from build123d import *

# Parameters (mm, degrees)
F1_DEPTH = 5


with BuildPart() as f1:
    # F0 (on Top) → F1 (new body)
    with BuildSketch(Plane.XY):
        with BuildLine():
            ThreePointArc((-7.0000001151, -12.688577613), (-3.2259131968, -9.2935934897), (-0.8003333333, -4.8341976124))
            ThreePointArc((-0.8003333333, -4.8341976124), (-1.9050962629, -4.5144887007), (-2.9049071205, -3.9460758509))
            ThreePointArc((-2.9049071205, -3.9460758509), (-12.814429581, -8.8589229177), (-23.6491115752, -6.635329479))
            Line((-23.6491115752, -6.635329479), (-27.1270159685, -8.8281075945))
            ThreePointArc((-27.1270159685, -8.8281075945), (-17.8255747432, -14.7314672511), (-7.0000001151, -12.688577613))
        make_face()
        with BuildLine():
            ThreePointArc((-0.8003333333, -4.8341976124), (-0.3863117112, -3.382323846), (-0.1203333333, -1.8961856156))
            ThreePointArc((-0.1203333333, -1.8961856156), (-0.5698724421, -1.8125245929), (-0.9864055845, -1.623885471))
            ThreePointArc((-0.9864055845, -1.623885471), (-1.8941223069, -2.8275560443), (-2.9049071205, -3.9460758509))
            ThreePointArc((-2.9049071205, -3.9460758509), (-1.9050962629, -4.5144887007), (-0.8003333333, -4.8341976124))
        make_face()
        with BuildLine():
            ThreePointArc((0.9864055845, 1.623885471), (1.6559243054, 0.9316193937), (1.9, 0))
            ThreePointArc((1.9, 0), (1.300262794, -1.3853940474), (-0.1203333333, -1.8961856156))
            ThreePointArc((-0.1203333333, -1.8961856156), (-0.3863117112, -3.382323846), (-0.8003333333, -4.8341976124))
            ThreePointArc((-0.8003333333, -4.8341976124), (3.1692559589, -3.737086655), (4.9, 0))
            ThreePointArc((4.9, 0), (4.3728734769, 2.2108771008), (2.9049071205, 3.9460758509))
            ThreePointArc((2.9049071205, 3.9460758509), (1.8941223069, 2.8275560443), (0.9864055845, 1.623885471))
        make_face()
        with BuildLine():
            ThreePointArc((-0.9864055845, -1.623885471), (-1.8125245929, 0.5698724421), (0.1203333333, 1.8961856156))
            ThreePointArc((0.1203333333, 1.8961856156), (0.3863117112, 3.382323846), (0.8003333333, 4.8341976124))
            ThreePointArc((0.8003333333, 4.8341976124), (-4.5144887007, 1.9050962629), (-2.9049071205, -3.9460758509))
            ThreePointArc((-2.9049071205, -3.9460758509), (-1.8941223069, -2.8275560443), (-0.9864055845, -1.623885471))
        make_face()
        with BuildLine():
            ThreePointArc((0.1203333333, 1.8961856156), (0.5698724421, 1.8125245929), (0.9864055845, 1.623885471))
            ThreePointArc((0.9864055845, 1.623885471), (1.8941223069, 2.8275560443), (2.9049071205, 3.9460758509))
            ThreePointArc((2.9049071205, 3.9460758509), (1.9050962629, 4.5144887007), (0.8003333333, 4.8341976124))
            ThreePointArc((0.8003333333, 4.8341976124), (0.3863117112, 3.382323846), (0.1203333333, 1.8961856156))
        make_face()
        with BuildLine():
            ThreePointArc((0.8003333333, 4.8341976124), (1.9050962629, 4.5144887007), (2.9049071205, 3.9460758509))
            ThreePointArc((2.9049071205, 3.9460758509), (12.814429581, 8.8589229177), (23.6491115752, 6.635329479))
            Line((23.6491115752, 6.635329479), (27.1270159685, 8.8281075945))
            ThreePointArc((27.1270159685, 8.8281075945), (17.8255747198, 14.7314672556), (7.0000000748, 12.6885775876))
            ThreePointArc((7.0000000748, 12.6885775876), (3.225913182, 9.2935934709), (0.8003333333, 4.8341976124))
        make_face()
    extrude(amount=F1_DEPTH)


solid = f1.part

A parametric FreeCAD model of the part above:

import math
import FreeCAD as App
import Part
import Sketcher

V = App.Vector
Q = App.Units.Quantity

doc = App.newDocument("Part")
body = doc.addObject("PartDesign::Body", "Body")

sketch1 = body.newObject("Sketcher::SketchObject", "Sketch")
sketch1.AttachmentSupport = (doc.getObject("XY_Plane"), [""])
sketch1.MapMode = "FlatFace"
sketch1.addGeometry(Part.ArcOfCircle(Part.Circle(V(-15, 0, 0), V(0, 0, 1), 15), math.radians(-58), math.radians(-19)), False)
sketch1.addGeometry(Part.ArcOfCircle(Part.Circle(V(0, 0, 0), V(0, 0, 1), 4.9), math.radians(-99), math.radians(0)), False)
sketch1.addGeometry(Part.ArcOfCircle(Part.Circle(V(0, 0, 0), V(0, 0, 1), 4.9), math.radians(0), math.radians(54)), False)
sketch1.addGeometry(Part.ArcOfCircle(Part.Circle(V(15, -8, 0), V(0, 0, 1), 17), math.radians(59), math.radians(135)), False)
sketch1.addGeometry(Part.LineSegment(V(23.6, 6.6, 0), V(27.1, 8.8, 0)), False)
sketch1.addGeometry(Part.ArcOfCircle(Part.Circle(V(15, 0, 0), V(0, 0, 1), 15), math.radians(36), math.radians(122)), False)
sketch1.addGeometry(Part.ArcOfCircle(Part.Circle(V(15, 0, 0), V(0, 0, 1), 15), math.radians(122), math.radians(161)), False)
sketch1.addGeometry(Part.ArcOfCircle(Part.Circle(V(0, 0, 0), V(0, 0, 1), 4.9), math.radians(81), math.radians(234)), False)
sketch1.addGeometry(Part.ArcOfCircle(Part.Circle(V(-15, 8, 0), V(0, 0, 1), 17), math.radians(-121), math.radians(-45)), False)
sketch1.addGeometry(Part.LineSegment(V(-23.6, -6.6, 0), V(-27.1, -8.8, 0)), False)
sketch1.addGeometry(Part.ArcOfCircle(Part.Circle(V(-15, 0, 0), V(0, 0, 1), 15), math.radians(-144), math.radians(-58)), False)
sketch1.addGeometry(Part.ArcOfCircle(Part.Circle(V(0, 0, 0), V(0, 0, 1), 1.9), math.radians(0), math.radians(59)), False)
sketch1.addGeometry(Part.ArcOfCircle(Part.Circle(V(0, 0, 0), V(0, 0, 1), 1.9), math.radians(-94), math.radians(0)), False)
sketch1.addGeometry(Part.ArcOfCircle(Part.Circle(V(0, 0, 0), V(0, 0, 1), 1.9), math.radians(-121), math.radians(-94)), False)
sketch1.addGeometry(Part.ArcOfCircle(Part.Circle(V(0, 0, 0), V(0, 0, 1), 1.9), math.radians(86), math.radians(239)), False)
sketch1.addGeometry(Part.ArcOfCircle(Part.Circle(V(0, 0, 0), V(0, 0, 1), 1.9), math.radians(59), math.radians(86)), False)
sketch1.addConstraint(Sketcher.Constraint("Coincident", 0, 2, 1, 1))
sketch1.addConstraint(Sketcher.Constraint("Tangent", 1, 2, 2, 1))
sketch1.addConstraint(Sketcher.Constraint("Coincident", 2, 2, 3, 2))
sketch1.addConstraint(Sketcher.Constraint("Coincident", 3, 1, 4, 1))
sketch1.addConstraint(Sketcher.Constraint("Coincident", 4, 2, 5, 1))
sketch1.addConstraint(Sketcher.Constraint("Tangent", 5, 2, 6, 1))
sketch1.addConstraint(Sketcher.Constraint("Coincident", 6, 2, 7, 1))
sketch1.addConstraint(Sketcher.Constraint("Coincident", 7, 2, 8, 2))
sketch1.addConstraint(Sketcher.Constraint("Coincident", 8, 1, 9, 1))
sketch1.addConstraint(Sketcher.Constraint("Coincident", 9, 2, 10, 1))
sketch1.addConstraint(Sketcher.Constraint("Tangent", 10, 2, 0, 1))
sketch1.addConstraint(Sketcher.Constraint("Tangent", 11, 1, 12, 2))
sketch1.addConstraint(Sketcher.Constraint("Tangent", 12, 1, 13, 2))
sketch1.addConstraint(Sketcher.Constraint("Tangent", 13, 1, 14, 2))
sketch1.addConstraint(Sketcher.Constraint("Tangent", 14, 1, 15, 2))
sketch1.addConstraint(Sketcher.Constraint("Tangent", 15, 1, 11, 2))
sketch1.addConstraint(Sketcher.Constraint("Coincident", 1, 3, -1, 1))
sketch1.addConstraint(Sketcher.Constraint("Coincident", 7, 3, -1, 1))
sketch1.addConstraint(Sketcher.Constraint("Coincident", 11, 3, -1, 1))
sketch1.addConstraint(Sketcher.Constraint("Coincident", 13, 3, -1, 1))
sketch1.addConstraint(Sketcher.Constraint("Equal", 1, 2))
sketch1.addConstraint(Sketcher.Constraint("Equal", 0, 5))
sketch1.addConstraint(Sketcher.Constraint("Equal", 5, 6))
sketch1.addConstraint(Sketcher.Constraint("Equal", 2, 7))
sketch1.addConstraint(Sketcher.Constraint("Equal", 3, 8))
sketch1.addConstraint(Sketcher.Constraint("Equal", 6, 10))
sketch1.addConstraint(Sketcher.Constraint("Symmetric", 0, 3, 5, 3, -1, 1))
sketch1.addConstraint(Sketcher.Constraint("Symmetric", 3, 3, 8, 3, -1, 1))
sketch1.addConstraint(Sketcher.Constraint("PointOnObject", 0, 3, -1))
sketch1.addConstraint(Sketcher.Constraint("PointOnObject", 1, 2, -1))
sketch1.addConstraint(Sketcher.Constraint("PointOnObject", 11, 1, -1))
sketch1.addConstraint(Sketcher.Constraint("Parallel", 4, 9))
sketch1.addConstraint(Sketcher.Constraint("Vertical", 3, 3, 5, 3))
sketch1.addConstraint(Sketcher.Constraint("Equal", 4, 9))
sketch1.addConstraint(Sketcher.Constraint("Radius", 0, Q("15 mm")))
sketch1.addConstraint(Sketcher.Constraint("Radius", 3, Q("17 mm")))
sketch1.addConstraint(Sketcher.Constraint("Radius", 1, Q("4.9 mm")))
sketch1.addConstraint(Sketcher.Constraint("Radius", 11, Q("1.9 mm")))
sketch1.addConstraint(Sketcher.Constraint("DistanceX", 0, 3, -1, 1, Q("15 mm")))
sketch1.addConstraint(Sketcher.Constraint("DistanceY", 3, 3, -1, 1, Q("8 mm")))
sketch1.addConstraint(Sketcher.Constraint("DistanceX", -1, 1, 5, 2, Q("7 mm")))
sketch1.addConstraint(Sketcher.Constraint("DistanceX", 10, 2, -1, 1, Q("7 mm")))
sketch1.addConstraint(Sketcher.Constraint("DistanceY", 12, 1, 13, 1, Q("0.2723 mm")))
sketch1.addConstraint(Sketcher.Constraint("DistanceY", 15, 1, 14, 1, Q("0.2723 mm")))
sketch1.addConstraint(Sketcher.Constraint("Distance", 4, Q("4.111459 mm")))
sketch1.addConstraint(Sketcher.Constraint("DistanceX", -1, 1, 3, 1, Q("23.649112 mm")))
sketch1.addConstraint(Sketcher.Constraint("DistanceX", 12, 1, -1, 1, Q("0.120333 mm")))
sketch1.addConstraint(Sketcher.Constraint("DistanceX", -1, 1, 14, 1, Q("0.120333 mm")))
pad1 = body.newObject("PartDesign::Pad", "Pad")
pad1.Profile = sketch1
pad1.Length = 5

doc.recompute()
